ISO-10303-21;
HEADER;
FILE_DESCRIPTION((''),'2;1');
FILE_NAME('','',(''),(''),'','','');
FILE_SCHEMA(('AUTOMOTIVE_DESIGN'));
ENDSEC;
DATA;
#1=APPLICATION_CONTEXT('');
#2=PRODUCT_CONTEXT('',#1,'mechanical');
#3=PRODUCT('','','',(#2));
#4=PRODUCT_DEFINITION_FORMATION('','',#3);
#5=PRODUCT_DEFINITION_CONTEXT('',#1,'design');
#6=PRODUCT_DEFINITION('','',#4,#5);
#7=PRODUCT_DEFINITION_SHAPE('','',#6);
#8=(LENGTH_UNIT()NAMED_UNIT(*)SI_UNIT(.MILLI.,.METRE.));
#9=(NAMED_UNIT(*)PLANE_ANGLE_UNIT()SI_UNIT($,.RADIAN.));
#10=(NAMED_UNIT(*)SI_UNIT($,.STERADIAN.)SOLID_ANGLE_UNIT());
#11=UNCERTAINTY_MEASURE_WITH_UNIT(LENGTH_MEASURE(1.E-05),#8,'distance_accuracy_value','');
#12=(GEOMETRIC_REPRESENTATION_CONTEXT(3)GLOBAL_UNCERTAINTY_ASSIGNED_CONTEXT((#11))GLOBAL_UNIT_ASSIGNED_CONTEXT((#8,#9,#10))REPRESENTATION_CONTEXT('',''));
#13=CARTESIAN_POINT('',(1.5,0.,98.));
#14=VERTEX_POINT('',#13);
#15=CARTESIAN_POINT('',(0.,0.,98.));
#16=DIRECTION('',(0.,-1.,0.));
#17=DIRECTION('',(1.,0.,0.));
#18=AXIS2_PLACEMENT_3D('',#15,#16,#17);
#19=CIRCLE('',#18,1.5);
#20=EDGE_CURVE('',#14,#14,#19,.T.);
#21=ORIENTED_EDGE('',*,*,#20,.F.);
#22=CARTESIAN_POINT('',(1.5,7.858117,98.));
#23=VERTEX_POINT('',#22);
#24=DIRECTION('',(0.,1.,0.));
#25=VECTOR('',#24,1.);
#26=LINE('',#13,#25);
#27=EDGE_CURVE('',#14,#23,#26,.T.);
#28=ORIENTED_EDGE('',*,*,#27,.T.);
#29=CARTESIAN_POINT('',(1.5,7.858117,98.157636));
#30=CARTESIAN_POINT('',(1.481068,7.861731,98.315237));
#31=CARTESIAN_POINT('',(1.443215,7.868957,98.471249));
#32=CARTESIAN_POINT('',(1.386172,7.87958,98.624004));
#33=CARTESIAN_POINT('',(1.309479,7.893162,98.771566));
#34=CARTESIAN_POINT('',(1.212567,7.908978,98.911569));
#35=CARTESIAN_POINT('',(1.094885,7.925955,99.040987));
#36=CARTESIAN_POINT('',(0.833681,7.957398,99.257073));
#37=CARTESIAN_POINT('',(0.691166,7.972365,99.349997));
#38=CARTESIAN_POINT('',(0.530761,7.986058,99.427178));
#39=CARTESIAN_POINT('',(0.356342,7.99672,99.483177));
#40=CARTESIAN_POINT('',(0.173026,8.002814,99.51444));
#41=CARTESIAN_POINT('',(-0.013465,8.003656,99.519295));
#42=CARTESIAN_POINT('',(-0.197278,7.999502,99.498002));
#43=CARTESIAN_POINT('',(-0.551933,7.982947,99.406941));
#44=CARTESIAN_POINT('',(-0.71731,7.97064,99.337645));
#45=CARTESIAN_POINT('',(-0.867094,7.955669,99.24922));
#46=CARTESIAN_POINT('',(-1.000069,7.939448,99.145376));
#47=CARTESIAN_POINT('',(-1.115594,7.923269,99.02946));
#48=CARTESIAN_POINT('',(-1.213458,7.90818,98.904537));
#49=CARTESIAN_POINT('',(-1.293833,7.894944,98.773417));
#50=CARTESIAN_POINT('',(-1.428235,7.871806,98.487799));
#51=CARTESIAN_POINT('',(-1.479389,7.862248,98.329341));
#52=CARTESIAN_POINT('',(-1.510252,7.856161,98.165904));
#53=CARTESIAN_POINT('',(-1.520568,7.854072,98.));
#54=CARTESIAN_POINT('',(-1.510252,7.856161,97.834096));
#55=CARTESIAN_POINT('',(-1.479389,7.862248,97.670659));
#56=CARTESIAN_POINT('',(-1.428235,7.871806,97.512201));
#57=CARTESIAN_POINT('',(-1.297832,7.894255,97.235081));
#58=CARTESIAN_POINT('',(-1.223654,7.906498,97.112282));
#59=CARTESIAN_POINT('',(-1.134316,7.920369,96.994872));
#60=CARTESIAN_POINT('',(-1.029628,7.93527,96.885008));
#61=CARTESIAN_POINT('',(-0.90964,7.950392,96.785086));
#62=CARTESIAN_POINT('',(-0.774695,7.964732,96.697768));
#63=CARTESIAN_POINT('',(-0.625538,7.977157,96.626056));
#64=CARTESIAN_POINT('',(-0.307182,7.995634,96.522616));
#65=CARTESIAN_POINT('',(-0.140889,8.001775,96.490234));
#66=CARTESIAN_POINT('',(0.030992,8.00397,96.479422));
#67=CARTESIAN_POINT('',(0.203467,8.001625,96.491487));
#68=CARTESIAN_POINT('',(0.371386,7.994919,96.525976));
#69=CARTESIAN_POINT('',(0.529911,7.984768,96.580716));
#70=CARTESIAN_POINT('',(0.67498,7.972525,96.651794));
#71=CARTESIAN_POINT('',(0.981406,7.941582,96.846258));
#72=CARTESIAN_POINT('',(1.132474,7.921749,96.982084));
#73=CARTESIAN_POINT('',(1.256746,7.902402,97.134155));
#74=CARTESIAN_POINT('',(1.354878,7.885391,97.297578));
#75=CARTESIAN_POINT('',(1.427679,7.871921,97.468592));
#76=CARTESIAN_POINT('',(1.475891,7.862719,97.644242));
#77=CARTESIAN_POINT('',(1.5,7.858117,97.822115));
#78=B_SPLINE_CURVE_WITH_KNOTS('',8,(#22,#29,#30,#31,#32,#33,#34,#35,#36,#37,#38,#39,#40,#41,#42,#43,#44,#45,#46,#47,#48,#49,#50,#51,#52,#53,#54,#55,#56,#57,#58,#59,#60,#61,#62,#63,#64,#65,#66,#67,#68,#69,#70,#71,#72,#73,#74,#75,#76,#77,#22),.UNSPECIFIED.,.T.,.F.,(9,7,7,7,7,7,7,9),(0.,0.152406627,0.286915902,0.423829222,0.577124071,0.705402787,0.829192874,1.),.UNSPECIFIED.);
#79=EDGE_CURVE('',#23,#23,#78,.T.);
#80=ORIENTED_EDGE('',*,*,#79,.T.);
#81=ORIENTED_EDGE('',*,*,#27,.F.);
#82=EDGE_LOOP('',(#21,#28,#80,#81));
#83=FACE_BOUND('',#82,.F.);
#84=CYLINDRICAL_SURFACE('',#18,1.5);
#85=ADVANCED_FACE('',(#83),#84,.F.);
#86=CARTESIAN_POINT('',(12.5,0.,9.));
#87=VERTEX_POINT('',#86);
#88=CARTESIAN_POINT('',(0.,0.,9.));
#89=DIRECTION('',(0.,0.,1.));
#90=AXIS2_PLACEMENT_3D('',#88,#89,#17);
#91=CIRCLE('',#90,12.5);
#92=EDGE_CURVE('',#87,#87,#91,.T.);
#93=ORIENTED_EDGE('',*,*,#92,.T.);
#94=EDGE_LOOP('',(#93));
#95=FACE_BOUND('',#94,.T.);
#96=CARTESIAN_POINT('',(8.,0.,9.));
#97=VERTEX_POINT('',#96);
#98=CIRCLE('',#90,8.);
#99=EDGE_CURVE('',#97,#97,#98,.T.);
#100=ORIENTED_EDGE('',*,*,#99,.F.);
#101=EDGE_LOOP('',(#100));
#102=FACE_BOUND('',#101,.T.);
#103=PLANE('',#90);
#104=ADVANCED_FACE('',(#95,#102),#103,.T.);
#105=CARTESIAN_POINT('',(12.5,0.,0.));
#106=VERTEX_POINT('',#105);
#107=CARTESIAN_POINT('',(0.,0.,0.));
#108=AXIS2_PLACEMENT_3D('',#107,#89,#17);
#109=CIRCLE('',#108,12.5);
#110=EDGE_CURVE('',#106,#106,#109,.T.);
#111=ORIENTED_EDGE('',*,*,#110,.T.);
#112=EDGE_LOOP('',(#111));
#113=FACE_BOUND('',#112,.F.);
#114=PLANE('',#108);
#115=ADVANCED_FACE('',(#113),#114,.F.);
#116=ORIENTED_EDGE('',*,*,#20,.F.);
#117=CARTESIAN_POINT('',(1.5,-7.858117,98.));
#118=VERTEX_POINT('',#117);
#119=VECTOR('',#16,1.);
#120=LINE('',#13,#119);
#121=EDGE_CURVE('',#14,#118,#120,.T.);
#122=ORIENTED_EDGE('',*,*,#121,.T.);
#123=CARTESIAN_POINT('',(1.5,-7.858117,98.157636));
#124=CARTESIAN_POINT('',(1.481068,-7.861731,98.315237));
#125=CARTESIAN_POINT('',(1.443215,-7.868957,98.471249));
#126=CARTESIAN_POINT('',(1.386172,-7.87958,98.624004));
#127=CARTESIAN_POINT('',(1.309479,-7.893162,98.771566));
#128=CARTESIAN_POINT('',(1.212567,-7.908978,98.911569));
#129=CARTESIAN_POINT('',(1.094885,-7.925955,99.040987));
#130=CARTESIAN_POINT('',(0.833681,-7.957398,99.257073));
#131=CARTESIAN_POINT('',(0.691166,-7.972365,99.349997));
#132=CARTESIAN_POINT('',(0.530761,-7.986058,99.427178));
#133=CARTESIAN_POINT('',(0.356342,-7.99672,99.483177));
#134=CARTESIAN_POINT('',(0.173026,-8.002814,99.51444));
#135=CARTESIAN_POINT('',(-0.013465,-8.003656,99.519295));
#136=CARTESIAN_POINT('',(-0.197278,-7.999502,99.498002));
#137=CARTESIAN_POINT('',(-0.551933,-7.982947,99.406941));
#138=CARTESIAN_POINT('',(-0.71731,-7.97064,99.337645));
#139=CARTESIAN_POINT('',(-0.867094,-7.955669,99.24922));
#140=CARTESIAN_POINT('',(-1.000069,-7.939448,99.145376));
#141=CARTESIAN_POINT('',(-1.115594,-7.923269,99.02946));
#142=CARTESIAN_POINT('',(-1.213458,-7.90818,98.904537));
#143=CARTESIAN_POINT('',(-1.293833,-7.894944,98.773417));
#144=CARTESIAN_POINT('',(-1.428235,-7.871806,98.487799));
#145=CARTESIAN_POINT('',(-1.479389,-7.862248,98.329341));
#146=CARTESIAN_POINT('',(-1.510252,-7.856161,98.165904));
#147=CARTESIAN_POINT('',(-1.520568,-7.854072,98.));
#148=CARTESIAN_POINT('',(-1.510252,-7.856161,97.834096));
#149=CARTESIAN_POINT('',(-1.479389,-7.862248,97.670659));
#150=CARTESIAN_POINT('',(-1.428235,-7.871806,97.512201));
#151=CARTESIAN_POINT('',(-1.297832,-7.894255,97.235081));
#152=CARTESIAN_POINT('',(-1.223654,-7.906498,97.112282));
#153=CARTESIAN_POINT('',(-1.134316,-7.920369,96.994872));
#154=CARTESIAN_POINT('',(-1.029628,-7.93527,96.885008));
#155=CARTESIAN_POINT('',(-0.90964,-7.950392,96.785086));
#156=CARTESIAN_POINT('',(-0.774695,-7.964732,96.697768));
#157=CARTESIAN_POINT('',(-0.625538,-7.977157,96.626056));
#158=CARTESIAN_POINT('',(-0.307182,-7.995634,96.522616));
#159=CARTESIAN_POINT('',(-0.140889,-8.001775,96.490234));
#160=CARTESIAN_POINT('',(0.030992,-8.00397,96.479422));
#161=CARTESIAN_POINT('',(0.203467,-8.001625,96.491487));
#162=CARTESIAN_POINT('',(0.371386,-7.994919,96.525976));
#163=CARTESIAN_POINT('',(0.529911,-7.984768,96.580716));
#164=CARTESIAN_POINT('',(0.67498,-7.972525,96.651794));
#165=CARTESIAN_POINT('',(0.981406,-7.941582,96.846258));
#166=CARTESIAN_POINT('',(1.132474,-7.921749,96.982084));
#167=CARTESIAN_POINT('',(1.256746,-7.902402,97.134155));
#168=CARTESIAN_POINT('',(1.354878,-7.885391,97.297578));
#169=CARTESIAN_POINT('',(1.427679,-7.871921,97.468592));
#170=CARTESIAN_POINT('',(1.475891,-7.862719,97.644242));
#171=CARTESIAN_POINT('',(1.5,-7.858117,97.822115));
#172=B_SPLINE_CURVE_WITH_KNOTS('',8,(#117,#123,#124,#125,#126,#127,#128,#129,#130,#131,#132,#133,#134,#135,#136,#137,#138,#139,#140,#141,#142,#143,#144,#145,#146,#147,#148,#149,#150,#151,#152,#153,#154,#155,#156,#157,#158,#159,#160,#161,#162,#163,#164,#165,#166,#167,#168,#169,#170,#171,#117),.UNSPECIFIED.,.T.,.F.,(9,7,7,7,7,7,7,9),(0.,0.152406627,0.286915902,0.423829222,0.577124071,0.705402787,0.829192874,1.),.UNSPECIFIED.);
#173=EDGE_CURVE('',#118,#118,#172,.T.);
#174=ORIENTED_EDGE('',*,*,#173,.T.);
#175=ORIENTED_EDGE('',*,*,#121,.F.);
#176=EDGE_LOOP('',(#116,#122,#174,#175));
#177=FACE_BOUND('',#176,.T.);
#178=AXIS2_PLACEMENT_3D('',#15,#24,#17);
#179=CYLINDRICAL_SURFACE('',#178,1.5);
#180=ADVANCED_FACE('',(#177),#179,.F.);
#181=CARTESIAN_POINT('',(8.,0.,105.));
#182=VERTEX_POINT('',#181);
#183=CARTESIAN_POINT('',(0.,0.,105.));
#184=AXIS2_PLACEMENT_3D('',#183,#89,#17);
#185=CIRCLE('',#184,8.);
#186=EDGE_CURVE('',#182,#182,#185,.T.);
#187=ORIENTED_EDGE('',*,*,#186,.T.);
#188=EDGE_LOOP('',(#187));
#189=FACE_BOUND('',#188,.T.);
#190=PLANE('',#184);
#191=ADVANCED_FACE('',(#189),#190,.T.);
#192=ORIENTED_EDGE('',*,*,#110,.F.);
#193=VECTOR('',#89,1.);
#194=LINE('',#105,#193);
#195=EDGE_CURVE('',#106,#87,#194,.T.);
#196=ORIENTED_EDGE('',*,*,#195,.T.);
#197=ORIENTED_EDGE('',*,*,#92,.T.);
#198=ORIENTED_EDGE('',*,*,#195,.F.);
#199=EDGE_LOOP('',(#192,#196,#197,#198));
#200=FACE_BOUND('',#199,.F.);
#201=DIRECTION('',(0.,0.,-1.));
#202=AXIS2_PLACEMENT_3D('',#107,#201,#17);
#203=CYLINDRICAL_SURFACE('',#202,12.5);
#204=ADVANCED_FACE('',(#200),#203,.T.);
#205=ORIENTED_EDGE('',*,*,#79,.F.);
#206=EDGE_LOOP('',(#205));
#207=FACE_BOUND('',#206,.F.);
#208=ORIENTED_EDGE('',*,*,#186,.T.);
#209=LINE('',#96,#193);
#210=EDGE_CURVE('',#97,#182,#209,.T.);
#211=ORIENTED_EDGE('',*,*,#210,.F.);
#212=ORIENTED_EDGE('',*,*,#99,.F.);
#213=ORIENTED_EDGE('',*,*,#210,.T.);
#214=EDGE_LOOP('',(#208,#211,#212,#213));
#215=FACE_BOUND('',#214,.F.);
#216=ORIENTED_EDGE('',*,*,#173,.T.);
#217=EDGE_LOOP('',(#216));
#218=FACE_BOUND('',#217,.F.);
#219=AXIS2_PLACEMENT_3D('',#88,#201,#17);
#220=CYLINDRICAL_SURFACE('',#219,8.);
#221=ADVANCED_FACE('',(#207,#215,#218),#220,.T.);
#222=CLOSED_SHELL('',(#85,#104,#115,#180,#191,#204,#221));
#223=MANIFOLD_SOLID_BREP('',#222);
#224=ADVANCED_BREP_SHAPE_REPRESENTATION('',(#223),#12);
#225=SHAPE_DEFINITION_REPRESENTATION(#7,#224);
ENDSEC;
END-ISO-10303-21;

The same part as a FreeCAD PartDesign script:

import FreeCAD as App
import Part
import Sketcher

V = App.Vector

doc = App.newDocument("Part")
body = doc.addObject("PartDesign::Body", "Body")

sketch1 = doc.addObject("Sketcher::SketchObject", "Sketch")
body.addObject(sketch1)
sketch1.AttachmentSupport = (doc.XY_Plane, [""])
sketch1.MapMode = "FlatFace"
sketch1.addGeometry(Part.Circle(V(0, 0, 0), V(0, 0, 1), 12), False)
sketch1.addConstraint([
    Sketcher.Constraint("Coincident", 0, 3, -1, 1),
    Sketcher.Constraint("Diameter", 0, 25.0),
])
pad1 = doc.addObject("PartDesign::Pad", "Pad")
body.addObject(pad1)
pad1.Profile = sketch1
pad1.Length = 9

sketch2 = doc.addObject("Sketcher::SketchObject", "Sketch001")
body.addObject(sketch2)
sketch2.AttachmentSupport = (doc.XY_Plane, [""])
sketch2.MapMode = "FlatFace"
sketch2.AttachmentOffset = App.Placement(V(0, 0, 9), App.Rotation())
sketch2.addGeometry(Part.Circle(V(0, 0, 0), V(0, 0, 1), 8), False)
sketch2.addConstraint([
    Sketcher.Constraint("Coincident", 0, 3, -1, 1),
    Sketcher.Constraint("Diameter", 0, 16.0),
])
pad2 = doc.addObject("PartDesign::Pad", "Pad001")
body.addObject(pad2)
pad2.Profile = sketch2
pad2.Length = 96

sketch3 = doc.addObject("Sketcher::SketchObject", "Sketch002")
body.addObject(sketch3)
sketch3.AttachmentSupport = (doc.XZ_Plane, [""])
sketch3.MapMode = "FlatFace"
sketch3.addGeometry(Part.Circle(V(0, 98, 0), V(0, 0, 1), 1.5), False)
sketch3.addConstraint([
    Sketcher.Constraint("PointOnObject", 0, 3, -2),
    Sketcher.Constraint("Diameter", 0, 3.0),
    Sketcher.Constraint("DistanceY", -1, 1, 0, 3, 98.0),
])
pocket1 = doc.addObject("PartDesign::Pocket", "Pocket")
body.addObject(pocket1)
pocket1.Profile = sketch3
pocket1.Length = 130.3633
pocket1.Midplane = True

doc.recompute()
